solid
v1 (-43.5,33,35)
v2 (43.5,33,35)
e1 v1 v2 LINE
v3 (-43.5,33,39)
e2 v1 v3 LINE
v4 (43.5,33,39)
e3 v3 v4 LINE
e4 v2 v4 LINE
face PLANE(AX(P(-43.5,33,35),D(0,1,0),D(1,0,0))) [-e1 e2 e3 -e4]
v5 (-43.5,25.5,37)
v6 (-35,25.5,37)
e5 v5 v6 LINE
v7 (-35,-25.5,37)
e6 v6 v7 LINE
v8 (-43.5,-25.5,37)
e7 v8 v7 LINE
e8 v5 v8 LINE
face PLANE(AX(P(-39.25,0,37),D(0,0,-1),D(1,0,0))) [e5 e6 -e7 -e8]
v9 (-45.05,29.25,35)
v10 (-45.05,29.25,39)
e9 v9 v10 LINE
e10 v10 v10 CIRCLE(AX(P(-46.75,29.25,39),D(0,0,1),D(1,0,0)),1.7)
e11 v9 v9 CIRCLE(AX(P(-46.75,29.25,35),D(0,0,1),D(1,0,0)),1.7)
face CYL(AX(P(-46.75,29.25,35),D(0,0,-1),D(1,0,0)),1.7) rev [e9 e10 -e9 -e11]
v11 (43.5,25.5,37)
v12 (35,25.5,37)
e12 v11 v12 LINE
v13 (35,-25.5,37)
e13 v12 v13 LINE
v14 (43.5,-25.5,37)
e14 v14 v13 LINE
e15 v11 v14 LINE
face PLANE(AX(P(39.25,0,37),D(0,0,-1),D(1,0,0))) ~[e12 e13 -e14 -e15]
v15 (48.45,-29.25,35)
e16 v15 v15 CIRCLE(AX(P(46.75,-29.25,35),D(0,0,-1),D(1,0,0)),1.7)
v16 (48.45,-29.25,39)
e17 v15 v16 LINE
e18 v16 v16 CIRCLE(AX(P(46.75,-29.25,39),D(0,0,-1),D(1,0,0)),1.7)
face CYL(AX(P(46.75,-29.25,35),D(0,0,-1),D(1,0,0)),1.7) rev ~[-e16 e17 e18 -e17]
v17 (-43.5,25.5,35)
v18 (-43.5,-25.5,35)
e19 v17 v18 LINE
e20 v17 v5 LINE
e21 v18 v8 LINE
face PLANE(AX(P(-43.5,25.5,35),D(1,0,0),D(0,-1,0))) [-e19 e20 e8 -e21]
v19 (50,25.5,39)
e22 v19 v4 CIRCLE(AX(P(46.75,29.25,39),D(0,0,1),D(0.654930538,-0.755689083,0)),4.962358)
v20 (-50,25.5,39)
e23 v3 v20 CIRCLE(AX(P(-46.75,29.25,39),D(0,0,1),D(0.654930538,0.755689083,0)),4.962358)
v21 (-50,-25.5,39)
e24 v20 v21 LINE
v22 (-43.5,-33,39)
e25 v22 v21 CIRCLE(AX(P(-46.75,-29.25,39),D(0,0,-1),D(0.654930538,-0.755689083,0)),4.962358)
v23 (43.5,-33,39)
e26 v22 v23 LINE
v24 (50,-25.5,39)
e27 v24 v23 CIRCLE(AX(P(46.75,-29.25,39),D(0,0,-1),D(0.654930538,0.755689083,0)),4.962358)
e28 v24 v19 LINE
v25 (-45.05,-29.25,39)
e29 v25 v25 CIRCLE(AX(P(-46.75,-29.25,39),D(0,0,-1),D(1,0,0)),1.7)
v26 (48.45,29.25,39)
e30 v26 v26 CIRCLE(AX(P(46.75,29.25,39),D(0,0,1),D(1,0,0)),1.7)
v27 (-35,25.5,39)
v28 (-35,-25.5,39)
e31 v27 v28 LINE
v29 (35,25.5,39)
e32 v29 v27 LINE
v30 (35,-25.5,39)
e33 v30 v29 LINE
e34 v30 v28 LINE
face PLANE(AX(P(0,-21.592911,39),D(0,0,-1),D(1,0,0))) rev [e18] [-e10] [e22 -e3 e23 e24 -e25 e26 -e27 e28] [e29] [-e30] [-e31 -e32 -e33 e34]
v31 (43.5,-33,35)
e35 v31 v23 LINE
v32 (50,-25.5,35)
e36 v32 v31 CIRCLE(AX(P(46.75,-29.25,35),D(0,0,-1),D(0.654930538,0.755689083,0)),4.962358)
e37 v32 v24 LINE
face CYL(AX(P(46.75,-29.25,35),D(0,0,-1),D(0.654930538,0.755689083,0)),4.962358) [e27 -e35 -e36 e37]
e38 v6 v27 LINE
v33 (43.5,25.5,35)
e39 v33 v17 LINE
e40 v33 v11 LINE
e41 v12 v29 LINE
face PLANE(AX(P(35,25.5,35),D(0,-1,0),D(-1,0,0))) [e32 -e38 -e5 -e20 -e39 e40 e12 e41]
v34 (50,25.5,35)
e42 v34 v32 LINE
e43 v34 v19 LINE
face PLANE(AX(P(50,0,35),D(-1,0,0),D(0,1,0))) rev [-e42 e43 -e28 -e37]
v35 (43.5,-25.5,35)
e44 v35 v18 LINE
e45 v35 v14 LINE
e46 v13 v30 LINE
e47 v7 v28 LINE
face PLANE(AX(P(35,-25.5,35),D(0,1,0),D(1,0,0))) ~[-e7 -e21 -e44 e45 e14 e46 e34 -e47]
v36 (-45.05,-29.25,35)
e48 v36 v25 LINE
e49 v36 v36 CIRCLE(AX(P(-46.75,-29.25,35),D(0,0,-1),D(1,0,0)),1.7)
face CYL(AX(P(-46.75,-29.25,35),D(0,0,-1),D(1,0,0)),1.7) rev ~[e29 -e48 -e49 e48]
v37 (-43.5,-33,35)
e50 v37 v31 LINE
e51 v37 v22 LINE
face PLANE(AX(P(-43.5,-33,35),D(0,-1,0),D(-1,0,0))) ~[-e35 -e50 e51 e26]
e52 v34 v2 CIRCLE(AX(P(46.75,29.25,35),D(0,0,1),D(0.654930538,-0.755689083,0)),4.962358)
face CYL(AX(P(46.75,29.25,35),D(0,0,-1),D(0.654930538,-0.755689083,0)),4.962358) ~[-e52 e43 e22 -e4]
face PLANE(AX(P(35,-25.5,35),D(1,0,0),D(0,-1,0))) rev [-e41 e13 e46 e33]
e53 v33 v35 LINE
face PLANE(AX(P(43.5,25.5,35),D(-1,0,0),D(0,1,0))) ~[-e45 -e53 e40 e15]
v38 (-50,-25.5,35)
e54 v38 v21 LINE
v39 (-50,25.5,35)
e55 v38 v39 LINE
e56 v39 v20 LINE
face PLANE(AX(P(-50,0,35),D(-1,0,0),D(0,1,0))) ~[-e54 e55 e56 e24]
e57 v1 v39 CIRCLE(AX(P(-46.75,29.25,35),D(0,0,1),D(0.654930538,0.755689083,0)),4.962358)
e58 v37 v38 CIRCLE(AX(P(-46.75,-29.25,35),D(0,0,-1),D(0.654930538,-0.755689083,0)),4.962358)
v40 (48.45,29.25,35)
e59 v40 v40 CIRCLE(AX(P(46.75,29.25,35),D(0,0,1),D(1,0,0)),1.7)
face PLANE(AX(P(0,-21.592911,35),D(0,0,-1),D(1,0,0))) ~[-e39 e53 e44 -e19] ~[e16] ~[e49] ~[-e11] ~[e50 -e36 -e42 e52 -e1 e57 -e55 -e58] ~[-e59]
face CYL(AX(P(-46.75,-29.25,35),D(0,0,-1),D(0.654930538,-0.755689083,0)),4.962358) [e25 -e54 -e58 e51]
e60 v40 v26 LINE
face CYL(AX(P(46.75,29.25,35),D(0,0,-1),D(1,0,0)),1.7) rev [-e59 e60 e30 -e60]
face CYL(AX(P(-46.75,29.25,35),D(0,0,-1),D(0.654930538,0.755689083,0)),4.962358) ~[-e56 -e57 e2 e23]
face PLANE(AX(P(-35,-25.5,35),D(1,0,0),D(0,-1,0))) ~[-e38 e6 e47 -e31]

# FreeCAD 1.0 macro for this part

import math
import FreeCAD as App
import Part
import Sketcher
from FreeCAD import Vector

doc = App.newDocument("Part")
body = doc.addObject("PartDesign::Body", "Body")

# Sketch on XY plane
sketch1 = body.newObject("Sketcher::SketchObject", "Sketch")
sketch1.AttachmentSupport = (doc.getObject("XY_Plane"), [""])
sketch1.MapMode = "FlatFace"
sketch1.addGeometry([
    Part.LineSegment(Vector(-35, 25.5, 0), Vector(35, 25.5, 0)),  # 0
    Part.LineSegment(Vector(35, 25.5, 0), Vector(35, 0, 0)),  # 1
    Part.LineSegment(Vector(35, 0, 0), Vector(50, 0, 0)),  # 2
    Part.LineSegment(Vector(50, 0, 0), Vector(50, 25.5, 0)),  # 3
    Part.ArcOfCircle(Part.Circle(Vector(46.8, 29.2, 0), Vector(0, 0, 1), 5), math.radians(-49), math.radians(131)),  # 4
    Part.LineSegment(Vector(43.5, 33, 0), Vector(-43.5, 33, 0)),  # 5
    Part.ArcOfCircle(Part.Circle(Vector(-46.8, 29.2, 0), Vector(0, 0, 1), 5), math.radians(49), math.radians(229)),  # 6
    Part.LineSegment(Vector(-50, 25.5, 0), Vector(-50, 0, 0)),  # 7
    Part.LineSegment(Vector(-50, 0, 0), Vector(-35, 0, 0)),  # 8
    Part.LineSegment(Vector(-35, 0, 0), Vector(-35, 25.5, 0)),  # 9
    Part.Circle(Vector(46.8, 29.2, 0), Vector(0, 0, 1), 1.7),  # 10
    Part.Circle(Vector(-46.8, 29.2, 0), Vector(0, 0, 1), 1.7),  # 11
], False)
sketch1.addConstraint([
    Sketcher.Constraint("Coincident", 0, 2, 1, 1),
    Sketcher.Constraint("Coincident", 1, 2, 2, 1),
    Sketcher.Constraint("Coincident", 2, 2, 3, 1),
    Sketcher.Constraint("Coincident", 3, 2, 4, 1),
    Sketcher.Constraint("Coincident", 4, 2, 5, 1),
    Sketcher.Constraint("Coincident", 5, 2, 6, 1),
    Sketcher.Constraint("Coincident", 6, 2, 7, 1),
    Sketcher.Constraint("Coincident", 7, 2, 8, 1),
    Sketcher.Constraint("Coincident", 8, 2, 9, 1),
    Sketcher.Constraint("Coincident", 9, 2, 0, 1),
    Sketcher.Constraint("Horizontal", 0),
    Sketcher.Constraint("Vertical", 1),
    Sketcher.Constraint("Horizontal", 2),
    Sketcher.Constraint("Vertical", 3),
    Sketcher.Constraint("Horizontal", 5),
    Sketcher.Constraint("Vertical", 7),
    Sketcher.Constraint("Horizontal", 8),
    Sketcher.Constraint("Vertical", 9),
    Sketcher.Constraint("Coincident", 10, 3, 4, 3),
    Sketcher.Constraint("Coincident", 11, 3, 6, 3),
    Sketcher.Constraint("Equal", 4, 6),
    Sketcher.Constraint("Equal", 10, 11),
    Sketcher.Constraint("Symmetric", 2, 2, 7, 2, -1, 1),
    Sketcher.Constraint("Symmetric", 4, 3, 6, 3, -2),
    Sketcher.Constraint("Symmetric", 1, 2, 8, 2, -2),
    Sketcher.Constraint("Horizontal", 0, 2, 3, 2),
    Sketcher.Constraint("Diameter", 10, 3.4),
    Sketcher.Constraint("DistanceX", 0, 1, 0, 2, 70.0),
    Sketcher.Constraint("DistanceX", 2, 1, 2, 2, 15.0),
    Sketcher.Constraint("DistanceX", 5, 2, 5, 1, 87.0),
    Sketcher.Constraint("DistanceY", 1, 2, 1, 1, 25.5),
    Sketcher.Constraint("DistanceY", -1, 1, 4, 2, 33.0),
    Sketcher.Constraint("DistanceX", 6, 3, 4, 3, 93.5),
])
pad1 = body.newObject("PartDesign::Pad", "Pad")
pad1.Profile = sketch1
pad1.Length = 4
doc.recompute()

mirrored = body.newObject("PartDesign::Mirrored", "Mirrored")
mirrored.Originals = [pad1]
mirrored.MirrorPlane = (doc.getObject("XZ_Plane"), [""])
body.Tip = mirrored

# Sketch on XY plane
sketch2 = body.newObject("Sketcher::SketchObject", "Sketch001")
sketch2.AttachmentSupport = (doc.getObject("XY_Plane"), [""])
sketch2.MapMode = "FlatFace"
sketch2.addGeometry([
    Part.LineSegment(Vector(-44, -26, 0), Vector(-44, 26, 0)),
    Part.LineSegment(Vector(-44, 26, 0), Vector(-35, 26, 0)),
    Part.LineSegment(Vector(-35, 26, 0), Vector(-35, -26, 0)),
    Part.LineSegment(Vector(-35, -26, 0), Vector(-44, -26, 0)),
], False)
sketch2.addConstraint([
    Sketcher.Constraint("Coincident", 0, 2, 1, 1),
    Sketcher.Constraint("Coincident", 1, 2, 2, 1),
    Sketcher.Constraint("Coincident", 2, 2, 3, 1),
    Sketcher.Constraint("Coincident", 3, 2, 0, 1),
    Sketcher.Constraint("Vertical", 0),
    Sketcher.Constraint("Horizontal", 1),
    Sketcher.Constraint("Vertical", 2),
    Sketcher.Constraint("Horizontal", 3),
    Sketcher.Constraint("DistanceY", 0, 1, 0, 2, 51.0),
    Sketcher.Constraint("DistanceX", 1, 1, 1, 2, 8.5),
    Sketcher.Constraint("DistanceX", 1, 2, -1, 1, 35.0),
    Sketcher.Constraint("DistanceY", -1, 1, 0, 2, 25.5),
])
pocket1 = body.newObject("PartDesign::Pocket", "Pocket")
pocket1.Profile = sketch2
pocket1.Length = 2
pocket1.Reversed = True
doc.recompute()

mirrored2 = body.newObject("PartDesign::Mirrored", "Mirrored001")
mirrored2.Originals = [pocket1]
mirrored2.MirrorPlane = (doc.getObject("YZ_Plane"), [""])
body.Tip = mirrored2
body2 = doc.addObject("PartDesign::Body", "Body001")
doc.recompute()

body.Placement = App.Placement(Vector(0, 0, 35), App.Rotation(Vector(0, 0, 1), 0))
boolean = body2.newObject("PartDesign::Boolean", "Boolean")
boolean.Type = "Fuse"
boolean.addObjects([body])

doc.recompute()
